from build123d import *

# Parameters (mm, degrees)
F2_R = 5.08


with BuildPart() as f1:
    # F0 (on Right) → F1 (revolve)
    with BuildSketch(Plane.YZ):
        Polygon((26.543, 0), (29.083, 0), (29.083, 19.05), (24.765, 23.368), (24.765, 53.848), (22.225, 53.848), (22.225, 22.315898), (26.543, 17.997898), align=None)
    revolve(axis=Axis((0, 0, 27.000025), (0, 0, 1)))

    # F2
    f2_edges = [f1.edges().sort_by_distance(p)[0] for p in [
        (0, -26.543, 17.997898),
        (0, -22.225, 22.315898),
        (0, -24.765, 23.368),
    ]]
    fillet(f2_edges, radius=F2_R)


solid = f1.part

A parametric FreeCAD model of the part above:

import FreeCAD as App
import Part
import Sketcher
from FreeCAD import Vector
Q = App.Units.Quantity


def edges_at(feature, points):
    """Names of the edges that pass closest to the given points."""
    edges = feature.Shape.Edges
    near = lambda p: min(range(len(edges)), key=lambda i: edges[i].distToShape(Part.Vertex(*p))[0])
    return sorted({f"Edge{near(p) + 1}" for p in points})

doc = App.newDocument("Part")
body = doc.addObject("PartDesign::Body", "Body")

# Sketch on YZ plane
sketch1 = body.newObject("Sketcher::SketchObject", "Sketch")
sketch1.AttachmentSupport = (doc.getObject("YZ_Plane"), [""])
sketch1.MapMode = "FlatFace"
sketch1.addGeometry(Part.LineSegment(Vector(26.5, 0, 0), Vector(29.1, 0, 0)), False)
sketch1.addGeometry(Part.LineSegment(Vector(29.1, 0, 0), Vector(29.1, 19.1, 0)), False)
sketch1.addGeometry(Part.LineSegment(Vector(29.1, 19.1, 0), Vector(24.8, 23.4, 0)), False)
sketch1.addGeometry(Part.LineSegment(Vector(24.8, 23.4, 0), Vector(24.8, 53.8, 0)), False)
sketch1.addGeometry(Part.LineSegment(Vector(24.8, 53.8, 0), Vector(22.2, 53.8, 0)), False)
sketch1.addGeometry(Part.LineSegment(Vector(22.2, 53.8, 0), Vector(22.2, 22.3, 0)), False)
sketch1.addGeometry(Part.LineSegment(Vector(22.2, 22.3, 0), Vector(26.5, 18, 0)), False)
sketch1.addGeometry(Part.LineSegment(Vector(26.5, 18, 0), Vector(26.5, 0, 0)), False)
sketch1.addConstraint(Sketcher.Constraint("Coincident", 0, 2, 1, 1))
sketch1.addConstraint(Sketcher.Constraint("Coincident", 1, 2, 2, 1))
sketch1.addConstraint(Sketcher.Constraint("Coincident", 2, 2, 3, 1))
sketch1.addConstraint(Sketcher.Constraint("Coincident", 3, 2, 4, 1))
sketch1.addConstraint(Sketcher.Constraint("Coincident", 4, 2, 5, 1))
sketch1.addConstraint(Sketcher.Constraint("Coincident", 5, 2, 6, 1))
sketch1.addConstraint(Sketcher.Constraint("Coincident", 6, 2, 7, 1))
sketch1.addConstraint(Sketcher.Constraint("Coincident", 7, 2, 0, 1))
sketch1.addConstraint(Sketcher.Constraint("Horizontal", 0))
sketch1.addConstraint(Sketcher.Constraint("Vertical", 1))
sketch1.addConstraint(Sketcher.Constraint("Vertical", 3))
sketch1.addConstraint(Sketcher.Constraint("Horizontal", 4))
sketch1.addConstraint(Sketcher.Constraint("Vertical", 5))
sketch1.addConstraint(Sketcher.Constraint("Vertical", 7))
sketch1.addConstraint(Sketcher.Constraint("PointOnObject", 0, 2, -1))
sketch1.addConstraint(Sketcher.Constraint("Parallel", 2, 6))
sketch1.addConstraint(Sketcher.Constraint("Equal", 0, 4))
sketch1.addConstraint(Sketcher.Constraint("DistanceX", 0, 1, 0, 2, Q("0.1 in")))
sketch1.addConstraint(Sketcher.Constraint("DistanceY", 3, 1, 3, 2, Q("1.2 in")))
sketch1.addConstraint(Sketcher.Constraint("Angle", 2, Q("135 deg")))
sketch1.addConstraint(Sketcher.Constraint("DistanceY", 1, 1, 1, 2, Q("0.75 in")))
sketch1.addConstraint(Sketcher.Constraint("DistanceY", -1, 1, 2, 2, Q("0.92 in")))
sketch1.addConstraint(Sketcher.Constraint("DistanceX", -1, 1, 0, 2, Q("1.145 in")))
sketch1.addConstraint(Sketcher.Constraint("DistanceY", 5, 2, 5, 1, 31.532102))
revolution = body.newObject("PartDesign::Revolution", "Revolution")
revolution.Profile = sketch1
revolution.ReferenceAxis = (sketch1, ["V_Axis"])
revolution.Angle = 360
doc.recompute()

fillet = body.newObject("PartDesign::Fillet", "Fillet")
fillet.Base = (revolution, edges_at(revolution, [(0, -26.543, 17.998), (0, -22.225, 22.316), (0, -24.765, 23.368)]))
fillet.Radius = Q("0.2 in")

doc.recompute()
